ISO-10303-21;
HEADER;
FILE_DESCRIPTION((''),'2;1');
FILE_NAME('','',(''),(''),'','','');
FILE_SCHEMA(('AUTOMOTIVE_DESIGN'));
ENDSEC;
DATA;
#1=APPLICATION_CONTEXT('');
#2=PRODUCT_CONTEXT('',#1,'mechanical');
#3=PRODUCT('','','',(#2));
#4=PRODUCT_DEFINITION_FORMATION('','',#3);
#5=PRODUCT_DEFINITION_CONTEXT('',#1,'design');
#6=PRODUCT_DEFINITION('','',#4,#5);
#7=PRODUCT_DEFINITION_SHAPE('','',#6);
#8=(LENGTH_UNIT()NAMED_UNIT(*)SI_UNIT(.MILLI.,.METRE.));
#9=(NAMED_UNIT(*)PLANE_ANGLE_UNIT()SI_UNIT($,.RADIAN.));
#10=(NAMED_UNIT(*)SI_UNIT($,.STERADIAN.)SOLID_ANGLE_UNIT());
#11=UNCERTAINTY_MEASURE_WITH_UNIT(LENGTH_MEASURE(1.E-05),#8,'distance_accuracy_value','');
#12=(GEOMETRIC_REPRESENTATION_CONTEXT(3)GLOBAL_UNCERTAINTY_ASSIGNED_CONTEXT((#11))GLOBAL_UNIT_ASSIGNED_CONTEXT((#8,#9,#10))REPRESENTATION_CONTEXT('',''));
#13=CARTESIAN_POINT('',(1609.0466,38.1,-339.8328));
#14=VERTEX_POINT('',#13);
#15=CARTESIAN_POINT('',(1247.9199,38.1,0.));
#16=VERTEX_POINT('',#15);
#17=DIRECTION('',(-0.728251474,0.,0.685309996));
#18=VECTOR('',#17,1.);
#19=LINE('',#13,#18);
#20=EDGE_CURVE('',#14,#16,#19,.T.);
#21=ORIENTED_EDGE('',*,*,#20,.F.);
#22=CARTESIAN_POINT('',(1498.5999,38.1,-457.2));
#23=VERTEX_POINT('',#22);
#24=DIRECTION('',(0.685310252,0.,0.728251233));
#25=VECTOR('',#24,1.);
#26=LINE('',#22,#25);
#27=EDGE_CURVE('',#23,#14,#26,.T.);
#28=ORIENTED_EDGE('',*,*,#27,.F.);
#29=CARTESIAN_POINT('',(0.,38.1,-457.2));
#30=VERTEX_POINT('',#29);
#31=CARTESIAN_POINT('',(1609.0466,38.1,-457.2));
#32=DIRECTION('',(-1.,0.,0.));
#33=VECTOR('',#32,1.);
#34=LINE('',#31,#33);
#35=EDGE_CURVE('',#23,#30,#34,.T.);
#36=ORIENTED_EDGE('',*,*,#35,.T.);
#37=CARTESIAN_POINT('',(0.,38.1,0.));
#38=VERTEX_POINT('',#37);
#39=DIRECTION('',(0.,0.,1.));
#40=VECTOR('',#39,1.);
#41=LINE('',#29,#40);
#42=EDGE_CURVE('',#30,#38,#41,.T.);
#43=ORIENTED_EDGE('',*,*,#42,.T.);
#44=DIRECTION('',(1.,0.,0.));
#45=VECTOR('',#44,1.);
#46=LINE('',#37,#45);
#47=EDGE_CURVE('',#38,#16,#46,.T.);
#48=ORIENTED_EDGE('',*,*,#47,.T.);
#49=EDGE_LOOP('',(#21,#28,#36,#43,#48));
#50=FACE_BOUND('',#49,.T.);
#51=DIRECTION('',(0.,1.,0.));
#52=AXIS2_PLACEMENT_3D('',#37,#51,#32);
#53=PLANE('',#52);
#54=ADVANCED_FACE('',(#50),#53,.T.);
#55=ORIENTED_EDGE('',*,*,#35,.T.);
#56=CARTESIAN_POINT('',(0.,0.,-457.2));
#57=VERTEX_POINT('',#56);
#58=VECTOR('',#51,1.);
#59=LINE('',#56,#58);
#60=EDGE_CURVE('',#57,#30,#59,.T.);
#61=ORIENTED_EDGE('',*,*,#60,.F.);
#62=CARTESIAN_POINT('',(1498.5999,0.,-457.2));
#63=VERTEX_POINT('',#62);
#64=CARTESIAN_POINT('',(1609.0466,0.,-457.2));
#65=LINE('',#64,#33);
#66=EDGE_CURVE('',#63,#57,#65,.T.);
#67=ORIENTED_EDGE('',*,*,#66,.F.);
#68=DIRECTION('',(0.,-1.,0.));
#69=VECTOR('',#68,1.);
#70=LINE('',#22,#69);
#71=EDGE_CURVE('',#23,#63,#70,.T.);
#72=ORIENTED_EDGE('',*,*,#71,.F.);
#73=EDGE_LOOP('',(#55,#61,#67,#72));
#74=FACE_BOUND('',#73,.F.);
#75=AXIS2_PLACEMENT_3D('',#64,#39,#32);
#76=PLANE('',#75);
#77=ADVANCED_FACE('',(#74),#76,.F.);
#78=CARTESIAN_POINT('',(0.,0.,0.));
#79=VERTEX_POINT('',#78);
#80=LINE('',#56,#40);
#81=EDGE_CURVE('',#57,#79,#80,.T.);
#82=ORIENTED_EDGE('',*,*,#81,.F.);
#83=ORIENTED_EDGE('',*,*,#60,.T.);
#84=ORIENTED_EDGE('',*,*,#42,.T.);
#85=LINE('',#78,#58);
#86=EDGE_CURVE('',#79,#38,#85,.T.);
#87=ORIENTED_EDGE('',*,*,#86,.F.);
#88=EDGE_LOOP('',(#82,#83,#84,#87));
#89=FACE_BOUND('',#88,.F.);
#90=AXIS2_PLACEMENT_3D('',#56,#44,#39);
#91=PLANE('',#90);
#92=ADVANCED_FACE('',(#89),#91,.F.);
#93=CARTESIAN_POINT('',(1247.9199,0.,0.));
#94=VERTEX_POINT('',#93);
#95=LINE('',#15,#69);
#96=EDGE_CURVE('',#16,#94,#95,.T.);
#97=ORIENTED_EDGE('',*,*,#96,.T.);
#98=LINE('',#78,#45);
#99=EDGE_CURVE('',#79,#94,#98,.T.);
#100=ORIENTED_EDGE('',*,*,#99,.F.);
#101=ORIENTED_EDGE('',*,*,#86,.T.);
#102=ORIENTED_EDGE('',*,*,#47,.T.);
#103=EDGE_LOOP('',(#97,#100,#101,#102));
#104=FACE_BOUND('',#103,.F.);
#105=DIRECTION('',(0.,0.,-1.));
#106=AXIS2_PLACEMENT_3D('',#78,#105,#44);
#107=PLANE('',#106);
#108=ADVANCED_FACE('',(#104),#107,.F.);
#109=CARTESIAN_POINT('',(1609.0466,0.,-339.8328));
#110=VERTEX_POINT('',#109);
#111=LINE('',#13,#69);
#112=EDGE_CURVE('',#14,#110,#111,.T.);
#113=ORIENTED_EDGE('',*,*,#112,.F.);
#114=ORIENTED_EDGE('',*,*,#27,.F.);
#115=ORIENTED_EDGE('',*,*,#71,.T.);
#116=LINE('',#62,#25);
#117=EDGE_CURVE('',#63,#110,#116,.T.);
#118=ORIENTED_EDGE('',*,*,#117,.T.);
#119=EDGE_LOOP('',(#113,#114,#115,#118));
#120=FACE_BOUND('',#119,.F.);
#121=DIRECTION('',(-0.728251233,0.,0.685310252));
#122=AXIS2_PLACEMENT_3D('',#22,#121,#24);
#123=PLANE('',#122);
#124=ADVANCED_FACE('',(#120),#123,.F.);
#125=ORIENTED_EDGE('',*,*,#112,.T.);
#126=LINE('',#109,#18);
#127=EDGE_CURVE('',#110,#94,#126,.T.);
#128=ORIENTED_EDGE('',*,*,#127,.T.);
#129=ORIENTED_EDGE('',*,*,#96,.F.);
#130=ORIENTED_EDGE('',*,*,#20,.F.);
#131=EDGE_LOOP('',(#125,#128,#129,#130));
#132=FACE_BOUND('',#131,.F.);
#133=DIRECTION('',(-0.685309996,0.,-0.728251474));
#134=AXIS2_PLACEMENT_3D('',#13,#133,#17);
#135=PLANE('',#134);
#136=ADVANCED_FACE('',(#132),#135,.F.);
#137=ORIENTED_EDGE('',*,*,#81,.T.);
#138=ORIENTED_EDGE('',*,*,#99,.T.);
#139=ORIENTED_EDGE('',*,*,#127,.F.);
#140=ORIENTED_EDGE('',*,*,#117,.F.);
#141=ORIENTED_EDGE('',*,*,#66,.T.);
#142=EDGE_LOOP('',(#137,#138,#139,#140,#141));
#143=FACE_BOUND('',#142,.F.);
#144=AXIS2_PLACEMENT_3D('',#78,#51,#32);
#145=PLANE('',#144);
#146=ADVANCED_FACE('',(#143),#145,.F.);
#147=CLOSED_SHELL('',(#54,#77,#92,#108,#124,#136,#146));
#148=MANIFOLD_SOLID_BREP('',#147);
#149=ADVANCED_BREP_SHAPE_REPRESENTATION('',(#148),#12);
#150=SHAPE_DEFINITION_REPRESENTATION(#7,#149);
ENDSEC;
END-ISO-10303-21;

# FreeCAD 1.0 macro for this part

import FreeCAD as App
import Part
import Sketcher
from FreeCAD import Vector
Q = App.Units.Quantity


def add_polygon(sketch, points):
    """Adds a closed chain of lines whose ends are joined by coincident constraints."""
    first, n = sketch.GeometryCount, len(points)
    for a, b in zip(points, points[1:] + points[:1]):
        sketch.addGeometry(Part.LineSegment(App.Vector(*a, 0), App.Vector(*b, 0)), False)
    for i in range(n):
        sketch.addConstraint(Sketcher.Constraint("Coincident", first + i, 2, first + (i + 1) % n, 1))

doc = App.newDocument("Part")
params = doc.addObject("Spreadsheet::Sheet", "Params")
for row, (alias, value) in enumerate([
    ("sketch1_height", "18 in"),
    ("pad1_length", "1.5 in"),
    ("sketch2_length", "6.345 in"),
    ("pocket1_length", "1.5 in"),
], start=1):
    params.set(f"A{row}", alias)
    params.set(f"B{row}", "=" + value)
    params.setAlias(f"B{row}", alias)

body = doc.addObject("PartDesign::Body", "Body")

sketch1 = body.newObject("Sketcher::SketchObject", "Sketch")
sketch1.AttachmentSupport = (doc.getObject("XZ_Plane"), [""])
sketch1.MapMode = "FlatFace"
add_polygon(sketch1, [(0, -457), (0, 0), (1609, 0), (1609, -457)])
sketch1.addConstraint(Sketcher.Constraint("Vertical", 0))
sketch1.addConstraint(Sketcher.Constraint("Horizontal", 1))
sketch1.addConstraint(Sketcher.Constraint("Vertical", 2))
sketch1.addConstraint(Sketcher.Constraint("Horizontal", 3))
sketch1.addConstraint(Sketcher.Constraint("Coincident", 0, 2, -1, 1))
sketch1.addConstraint(Sketcher.Constraint("DistanceY", 0, 1, 0, 2, Q("18 in")))
sketch1.addConstraint(Sketcher.Constraint("DistanceX", 1, 1, 1, 2, Q("63.3483 in")))
sketch1.setExpression("Constraints[9]", "Params.sketch1_height")
pad1 = body.newObject("PartDesign::Pad", "Pad")
pad1.Profile = sketch1
pad1.setExpression("Length", "Params.pad1_length")
pad1.Reversed = True

sketch2 = body.newObject("Sketcher::SketchObject", "Sketch001")
sketch2.AttachmentSupport = (doc.getObject("XZ_Plane"), [""])
sketch2.MapMode = "FlatFace"
sketch2.AttachmentOffset = App.Placement(Vector(0, 0, -1.5 * 25.4), App.Rotation())
add_polygon(sketch2, [(1609, -340), (1609, -457), (1499, -457)])
add_polygon(sketch2, [(1609, 0), (1609, -340), (1248, 0)])
sketch2.addConstraint(Sketcher.Constraint("Vertical", 0))
sketch2.addConstraint(Sketcher.Constraint("Horizontal", 1))
sketch2.addConstraint(Sketcher.Constraint("Vertical", 3))
sketch2.addConstraint(Sketcher.Constraint("Horizontal", 5))
sketch2.addConstraint(Sketcher.Constraint("Coincident", 3, 2, 2, 2))
sketch2.addConstraint(Sketcher.Constraint("PointOnObject", 4, 2, -1))
sketch2.addConstraint(Sketcher.Constraint("Perpendicular", 2, 4))
sketch2.addConstraint(Sketcher.Constraint("Distance", 2, Q("6.345 in")))
sketch2.addConstraint(Sketcher.Constraint("DistanceY", 0, 2, -1, 1, Q("18 in")))
sketch2.addConstraint(Sketcher.Constraint("DistanceX", -1, 1, 1, 2, Q("59 in")))
sketch2.addConstraint(Sketcher.Constraint("Angle", 2, Q("46.74 deg")))
sketch2.setExpression("Constraints[13]", "Params.sketch2_length")
pocket1 = body.newObject("PartDesign::Pocket", "Pocket")
pocket1.Profile = sketch2
pocket1.setExpression("Length", "Params.pocket1_length")
pocket1.Reversed = True

doc.recompute()
